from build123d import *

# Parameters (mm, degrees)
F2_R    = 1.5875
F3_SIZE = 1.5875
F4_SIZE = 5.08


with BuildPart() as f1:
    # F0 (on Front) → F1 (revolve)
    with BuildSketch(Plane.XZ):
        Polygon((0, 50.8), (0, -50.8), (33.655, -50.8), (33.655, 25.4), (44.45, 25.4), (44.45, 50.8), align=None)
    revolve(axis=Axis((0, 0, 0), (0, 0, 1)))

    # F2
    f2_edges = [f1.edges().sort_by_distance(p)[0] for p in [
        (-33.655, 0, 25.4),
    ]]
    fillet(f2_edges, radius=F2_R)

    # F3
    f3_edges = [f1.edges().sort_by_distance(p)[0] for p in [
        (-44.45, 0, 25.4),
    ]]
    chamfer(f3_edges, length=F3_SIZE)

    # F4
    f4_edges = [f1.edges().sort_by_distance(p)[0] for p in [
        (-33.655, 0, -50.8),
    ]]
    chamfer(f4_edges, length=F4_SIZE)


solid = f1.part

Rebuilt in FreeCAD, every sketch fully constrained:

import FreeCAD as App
import Part
import Sketcher

V = App.Vector
Q = App.Units.Quantity


def edges_at(feature, points):
    """Names of the edges that pass closest to the given points."""
    edges = feature.Shape.Edges
    near = lambda p: min(range(len(edges)), key=lambda i: edges[i].distToShape(Part.Vertex(*p))[0])
    return sorted({f"Edge{near(p) + 1}" for p in points})


def add_polygon(sketch, points):
    """Adds a closed chain of lines whose ends are joined by coincident constraints."""
    first, n = sketch.GeometryCount, len(points)
    for a, b in zip(points, points[1:] + points[:1]):
        sketch.addGeometry(Part.LineSegment(App.Vector(*a, 0), App.Vector(*b, 0)), False)
    for i in range(n):
        sketch.addConstraint(Sketcher.Constraint("Coincident", first + i, 2, first + (i + 1) % n, 1))

doc = App.newDocument("Part")
params = doc.addObject("Spreadsheet::Sheet", "Params")
for row, (alias, value) in enumerate([
    ("sketch1_height", "4 in"),
    ("sketch1_height2", "3 in"),
    ("sketch1_width", "1.75 in"),
    ("sketch1_width2", "1.325 in"),
    ("revolution_angle", "360 deg"),
    ("fillet_radius", "0.0625 in"),
    ("chamfer_size", "0.0625 in"),
    ("chamfer2_size", "0.2 in"),
], start=1):
    params.set(f"A{row}", alias)
    params.set(f"B{row}", "=" + value)
    params.setAlias(f"B{row}", alias)

body = doc.addObject("PartDesign::Body", "Body")

# Sketch on XZ plane
sketch1 = doc.addObject("Sketcher::SketchObject", "Sketch")
body.addObject(sketch1)
sketch1.AttachmentSupport = (doc.XZ_Plane, [""])
sketch1.MapMode = "FlatFace"
add_polygon(sketch1, [(0, 51), (0, -51), (34, -51), (34, 25), (44, 25), (44, 51)])  # lines 0-5
sketch1.addConstraint(Sketcher.Constraint("Vertical", 0))
sketch1.addConstraint(Sketcher.Constraint("Horizontal", 1))
sketch1.addConstraint(Sketcher.Constraint("Vertical", 2))
sketch1.addConstraint(Sketcher.Constraint("Horizontal", 3))
sketch1.addConstraint(Sketcher.Constraint("Vertical", 4))
sketch1.addConstraint(Sketcher.Constraint("Horizontal", 5))
sketch1.addConstraint(Sketcher.Constraint("Symmetric", 0, 2, 5, 2, -1, 1))
sketch1.addConstraint(Sketcher.Constraint("DistanceY", 0, 2, 0, 1, Q("4 in")))
sketch1.addConstraint(Sketcher.Constraint("DistanceY", 2, 1, 2, 2, Q("3 in")))
sketch1.addConstraint(Sketcher.Constraint("DistanceX", 5, 2, 5, 1, Q("1.75 in")))
sketch1.addConstraint(Sketcher.Constraint("DistanceX", 1, 1, 1, 2, Q("1.325 in")))
sketch1.setExpression("Constraints[13]", "Params.sketch1_height")
sketch1.setExpression("Constraints[14]", "Params.sketch1_height2")
sketch1.setExpression("Constraints[15]", "Params.sketch1_width")
sketch1.setExpression("Constraints[16]", "Params.sketch1_width2")
revolution = doc.addObject("PartDesign::Revolution", "Revolution")
body.addObject(revolution)
revolution.Profile = sketch1
revolution.ReferenceAxis = (sketch1, ["V_Axis"])
revolution.setExpression("Angle", "Params.revolution_angle")
doc.recompute()

fillet = doc.addObject("PartDesign::Fillet", "Fillet")
body.addObject(fillet)
fillet.Base = (revolution, edges_at(revolution, [(-33.655, 0, 25.4)]))
fillet.setExpression("Radius", "Params.fillet_radius")
doc.recompute()

chamfer = doc.addObject("PartDesign::Chamfer", "Chamfer")
body.addObject(chamfer)
chamfer.Base = (fillet, edges_at(fillet, [(-44.45, 0, 25.4)]))
chamfer.setExpression("Size", "Params.chamfer_size")
doc.recompute()

chamfer2 = doc.addObject("PartDesign::Chamfer", "Chamfer001")
body.addObject(chamfer2)
chamfer2.Base = (chamfer, edges_at(chamfer, [(-33.655, 0, -50.8)]))
chamfer2.setExpression("Size", "Params.chamfer2_size")

doc.recompute()
